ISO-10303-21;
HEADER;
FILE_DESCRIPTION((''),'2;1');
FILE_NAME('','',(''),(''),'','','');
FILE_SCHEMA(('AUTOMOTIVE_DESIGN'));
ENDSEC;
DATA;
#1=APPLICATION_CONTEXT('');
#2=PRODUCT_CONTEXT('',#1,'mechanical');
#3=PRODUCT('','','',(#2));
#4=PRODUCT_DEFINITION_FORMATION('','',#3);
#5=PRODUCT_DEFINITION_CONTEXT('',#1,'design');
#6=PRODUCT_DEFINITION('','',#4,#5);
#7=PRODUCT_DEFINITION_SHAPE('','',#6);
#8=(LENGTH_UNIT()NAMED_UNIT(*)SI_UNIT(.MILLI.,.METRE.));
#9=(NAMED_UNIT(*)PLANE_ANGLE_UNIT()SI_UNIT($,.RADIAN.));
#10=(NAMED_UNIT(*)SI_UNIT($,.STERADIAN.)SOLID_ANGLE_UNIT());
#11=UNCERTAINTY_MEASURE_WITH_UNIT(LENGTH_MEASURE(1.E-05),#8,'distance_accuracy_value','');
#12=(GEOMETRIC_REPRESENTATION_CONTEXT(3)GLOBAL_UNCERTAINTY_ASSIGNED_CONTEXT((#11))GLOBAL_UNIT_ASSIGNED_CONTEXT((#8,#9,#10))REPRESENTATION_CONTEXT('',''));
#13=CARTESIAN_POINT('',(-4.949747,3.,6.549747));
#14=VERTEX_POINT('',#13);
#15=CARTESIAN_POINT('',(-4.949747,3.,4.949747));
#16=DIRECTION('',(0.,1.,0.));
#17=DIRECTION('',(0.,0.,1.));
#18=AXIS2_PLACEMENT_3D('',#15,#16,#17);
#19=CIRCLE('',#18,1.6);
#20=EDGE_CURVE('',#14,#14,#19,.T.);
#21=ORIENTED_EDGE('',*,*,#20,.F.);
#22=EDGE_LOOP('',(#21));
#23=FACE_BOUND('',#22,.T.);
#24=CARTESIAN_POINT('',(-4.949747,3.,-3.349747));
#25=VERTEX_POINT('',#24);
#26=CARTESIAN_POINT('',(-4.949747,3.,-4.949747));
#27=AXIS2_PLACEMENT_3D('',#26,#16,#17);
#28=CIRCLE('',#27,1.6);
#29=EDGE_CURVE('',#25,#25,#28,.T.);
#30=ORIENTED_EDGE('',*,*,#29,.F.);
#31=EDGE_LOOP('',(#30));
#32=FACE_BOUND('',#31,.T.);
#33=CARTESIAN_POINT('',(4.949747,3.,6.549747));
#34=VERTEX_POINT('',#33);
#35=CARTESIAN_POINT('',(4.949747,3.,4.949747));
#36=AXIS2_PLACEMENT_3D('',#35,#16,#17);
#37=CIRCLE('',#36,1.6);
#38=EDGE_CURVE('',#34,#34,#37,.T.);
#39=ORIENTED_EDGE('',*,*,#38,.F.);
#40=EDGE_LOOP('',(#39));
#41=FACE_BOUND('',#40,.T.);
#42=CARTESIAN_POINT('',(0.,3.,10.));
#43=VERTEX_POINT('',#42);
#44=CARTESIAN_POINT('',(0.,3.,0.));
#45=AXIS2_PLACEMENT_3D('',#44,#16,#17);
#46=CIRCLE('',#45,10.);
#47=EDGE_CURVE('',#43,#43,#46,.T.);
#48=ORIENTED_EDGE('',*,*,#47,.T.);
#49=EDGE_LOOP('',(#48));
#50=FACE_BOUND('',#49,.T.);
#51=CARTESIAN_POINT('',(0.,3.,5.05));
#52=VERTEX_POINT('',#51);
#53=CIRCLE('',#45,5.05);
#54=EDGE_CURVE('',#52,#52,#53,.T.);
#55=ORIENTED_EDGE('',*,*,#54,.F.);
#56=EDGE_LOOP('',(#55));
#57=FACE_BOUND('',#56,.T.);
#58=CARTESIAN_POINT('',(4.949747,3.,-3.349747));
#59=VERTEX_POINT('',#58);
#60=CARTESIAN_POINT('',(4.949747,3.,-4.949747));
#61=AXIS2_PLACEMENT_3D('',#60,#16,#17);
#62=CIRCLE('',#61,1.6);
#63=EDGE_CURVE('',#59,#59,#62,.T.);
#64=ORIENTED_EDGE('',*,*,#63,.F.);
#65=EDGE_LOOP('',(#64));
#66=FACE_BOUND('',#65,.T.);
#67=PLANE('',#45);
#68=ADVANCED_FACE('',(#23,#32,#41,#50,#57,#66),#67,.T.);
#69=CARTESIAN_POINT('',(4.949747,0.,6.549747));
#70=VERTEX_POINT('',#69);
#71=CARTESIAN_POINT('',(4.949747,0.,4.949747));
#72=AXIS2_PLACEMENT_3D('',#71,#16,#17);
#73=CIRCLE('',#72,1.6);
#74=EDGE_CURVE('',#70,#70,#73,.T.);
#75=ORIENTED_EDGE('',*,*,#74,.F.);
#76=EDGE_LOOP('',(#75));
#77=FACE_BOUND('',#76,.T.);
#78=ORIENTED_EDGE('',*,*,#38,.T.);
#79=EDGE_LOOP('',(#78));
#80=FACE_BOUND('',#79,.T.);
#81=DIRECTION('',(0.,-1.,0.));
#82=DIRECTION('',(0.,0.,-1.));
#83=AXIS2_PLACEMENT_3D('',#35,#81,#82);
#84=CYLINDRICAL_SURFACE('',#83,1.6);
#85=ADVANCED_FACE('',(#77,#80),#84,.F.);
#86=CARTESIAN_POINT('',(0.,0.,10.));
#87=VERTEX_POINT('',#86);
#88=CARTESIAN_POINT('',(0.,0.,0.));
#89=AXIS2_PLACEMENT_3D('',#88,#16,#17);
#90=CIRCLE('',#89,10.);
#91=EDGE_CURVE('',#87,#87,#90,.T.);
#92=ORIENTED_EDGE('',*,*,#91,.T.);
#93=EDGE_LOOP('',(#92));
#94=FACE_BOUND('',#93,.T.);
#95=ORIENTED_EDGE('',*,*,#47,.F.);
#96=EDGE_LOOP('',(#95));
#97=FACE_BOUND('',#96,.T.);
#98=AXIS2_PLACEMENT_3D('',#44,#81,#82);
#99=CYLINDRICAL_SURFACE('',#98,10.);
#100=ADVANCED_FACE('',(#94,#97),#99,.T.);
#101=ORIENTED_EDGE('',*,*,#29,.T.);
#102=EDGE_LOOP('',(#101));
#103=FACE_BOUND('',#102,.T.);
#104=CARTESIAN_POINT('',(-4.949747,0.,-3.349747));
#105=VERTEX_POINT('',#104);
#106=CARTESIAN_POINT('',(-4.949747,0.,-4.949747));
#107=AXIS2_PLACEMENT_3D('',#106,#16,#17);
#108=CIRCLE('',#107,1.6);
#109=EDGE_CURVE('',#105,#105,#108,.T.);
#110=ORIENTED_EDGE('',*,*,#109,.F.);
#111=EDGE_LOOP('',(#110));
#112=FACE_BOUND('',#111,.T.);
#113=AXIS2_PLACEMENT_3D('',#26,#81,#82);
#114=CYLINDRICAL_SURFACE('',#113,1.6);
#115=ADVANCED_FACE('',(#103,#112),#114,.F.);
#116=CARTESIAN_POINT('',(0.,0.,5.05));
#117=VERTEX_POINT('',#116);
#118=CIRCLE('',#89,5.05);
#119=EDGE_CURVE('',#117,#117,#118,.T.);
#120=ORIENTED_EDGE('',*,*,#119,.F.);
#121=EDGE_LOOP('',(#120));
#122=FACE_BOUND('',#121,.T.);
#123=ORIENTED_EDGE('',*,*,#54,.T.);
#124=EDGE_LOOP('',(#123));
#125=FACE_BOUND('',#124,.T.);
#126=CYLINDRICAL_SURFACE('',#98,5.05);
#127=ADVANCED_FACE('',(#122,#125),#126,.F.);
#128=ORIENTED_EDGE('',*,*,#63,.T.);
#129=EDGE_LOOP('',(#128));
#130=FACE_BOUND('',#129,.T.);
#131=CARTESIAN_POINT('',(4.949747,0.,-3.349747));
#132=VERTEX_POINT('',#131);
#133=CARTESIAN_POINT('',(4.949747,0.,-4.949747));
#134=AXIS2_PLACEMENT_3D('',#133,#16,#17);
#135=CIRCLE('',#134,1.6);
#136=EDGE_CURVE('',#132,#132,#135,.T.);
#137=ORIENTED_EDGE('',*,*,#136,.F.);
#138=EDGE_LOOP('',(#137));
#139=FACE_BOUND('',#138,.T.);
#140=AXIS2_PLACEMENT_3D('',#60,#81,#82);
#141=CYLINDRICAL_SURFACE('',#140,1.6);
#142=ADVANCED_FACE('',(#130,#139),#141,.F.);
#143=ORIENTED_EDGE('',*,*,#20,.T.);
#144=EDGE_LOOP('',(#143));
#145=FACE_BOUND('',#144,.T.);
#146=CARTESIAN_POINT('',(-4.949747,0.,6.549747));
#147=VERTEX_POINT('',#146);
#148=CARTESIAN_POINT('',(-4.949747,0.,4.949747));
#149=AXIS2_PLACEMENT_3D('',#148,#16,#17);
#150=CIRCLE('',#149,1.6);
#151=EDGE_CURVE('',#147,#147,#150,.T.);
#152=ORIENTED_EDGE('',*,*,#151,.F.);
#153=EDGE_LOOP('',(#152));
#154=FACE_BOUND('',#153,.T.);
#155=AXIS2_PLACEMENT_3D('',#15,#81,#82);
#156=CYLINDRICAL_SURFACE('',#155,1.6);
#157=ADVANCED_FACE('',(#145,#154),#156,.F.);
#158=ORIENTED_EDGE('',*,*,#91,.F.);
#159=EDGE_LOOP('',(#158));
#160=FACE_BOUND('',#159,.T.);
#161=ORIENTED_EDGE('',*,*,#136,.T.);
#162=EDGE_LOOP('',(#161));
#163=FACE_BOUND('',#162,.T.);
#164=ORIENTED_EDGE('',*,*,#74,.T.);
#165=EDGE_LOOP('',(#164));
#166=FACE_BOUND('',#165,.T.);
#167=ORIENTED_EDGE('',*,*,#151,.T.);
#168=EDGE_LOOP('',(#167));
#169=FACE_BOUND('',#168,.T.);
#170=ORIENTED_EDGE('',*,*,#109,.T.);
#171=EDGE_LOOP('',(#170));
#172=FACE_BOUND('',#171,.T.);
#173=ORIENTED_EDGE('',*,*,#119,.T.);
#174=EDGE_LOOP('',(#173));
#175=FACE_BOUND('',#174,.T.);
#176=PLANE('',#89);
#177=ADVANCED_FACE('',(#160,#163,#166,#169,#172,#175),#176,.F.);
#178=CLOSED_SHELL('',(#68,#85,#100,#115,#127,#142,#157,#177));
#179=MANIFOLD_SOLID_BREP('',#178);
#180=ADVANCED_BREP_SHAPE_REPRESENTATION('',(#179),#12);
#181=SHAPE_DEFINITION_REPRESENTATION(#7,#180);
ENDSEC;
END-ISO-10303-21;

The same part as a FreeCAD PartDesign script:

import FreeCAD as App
import Part
import Sketcher
from FreeCAD import Vector
Q = App.Units.Quantity

doc = App.newDocument("Part")
body = doc.addObject("PartDesign::Body", "Body")

# Sketch on XZ plane
sketch1 = body.newObject("Sketcher::SketchObject", "Sketch")
sketch1.AttachmentSupport = (doc.getObject("XZ_Plane"), [""])
sketch1.MapMode = "FlatFace"
sketch1.addGeometry([
    Part.Circle(Vector(0, 0, 0), Vector(0, 0, 1), 10),  # 0
    Part.Circle(Vector(-4.949747, -4.949747, 0), Vector(0, 0, 1), 1.6),  # 1
    Part.Circle(Vector(0, 0, 0), Vector(0, 0, 1), 5.05),  # 2
    Part.Circle(Vector(-4.949747, 4.949747, 0), Vector(0, 0, 1), 1.6),  # 3
    Part.Circle(Vector(4.949747, -4.949747, 0), Vector(0, 0, 1), 1.6),  # 4
    Part.Circle(Vector(4.949747, 4.949747, 0), Vector(0, 0, 1), 1.6),  # 5
], False)
sketch1.addConstraint([
    Sketcher.Constraint("Coincident", 0, 3, -1, 1),
    Sketcher.Constraint("Coincident", 2, 3, -1, 1),
    Sketcher.Constraint("Equal", 1, 3),
    Sketcher.Constraint("Equal", 3, 4),
    Sketcher.Constraint("Equal", 4, 5),
    Sketcher.Constraint("Symmetric", 3, 3, 4, 3, -1, 1),
    Sketcher.Constraint("Symmetric", 1, 3, 5, 3, -1, 1),
    Sketcher.Constraint("Symmetric", 1, 3, 4, 3, -2),
    Sketcher.Constraint("Diameter", 0, Q("20 mm")),
    Sketcher.Constraint("Diameter", 1, Q("3.2 mm")),
    Sketcher.Constraint("Diameter", 2, Q("10.1 mm")),
    Sketcher.Constraint("DistanceX", 1, 3, -1, 1, Q("4.949747 mm")),
    Sketcher.Constraint("DistanceY", 1, 3, -1, 1, Q("4.949747 mm")),
])
pad1 = body.newObject("PartDesign::Pad", "Pad")
pad1.Profile = sketch1
pad1.Length = 3
pad1.Reversed = True

doc.recompute()
